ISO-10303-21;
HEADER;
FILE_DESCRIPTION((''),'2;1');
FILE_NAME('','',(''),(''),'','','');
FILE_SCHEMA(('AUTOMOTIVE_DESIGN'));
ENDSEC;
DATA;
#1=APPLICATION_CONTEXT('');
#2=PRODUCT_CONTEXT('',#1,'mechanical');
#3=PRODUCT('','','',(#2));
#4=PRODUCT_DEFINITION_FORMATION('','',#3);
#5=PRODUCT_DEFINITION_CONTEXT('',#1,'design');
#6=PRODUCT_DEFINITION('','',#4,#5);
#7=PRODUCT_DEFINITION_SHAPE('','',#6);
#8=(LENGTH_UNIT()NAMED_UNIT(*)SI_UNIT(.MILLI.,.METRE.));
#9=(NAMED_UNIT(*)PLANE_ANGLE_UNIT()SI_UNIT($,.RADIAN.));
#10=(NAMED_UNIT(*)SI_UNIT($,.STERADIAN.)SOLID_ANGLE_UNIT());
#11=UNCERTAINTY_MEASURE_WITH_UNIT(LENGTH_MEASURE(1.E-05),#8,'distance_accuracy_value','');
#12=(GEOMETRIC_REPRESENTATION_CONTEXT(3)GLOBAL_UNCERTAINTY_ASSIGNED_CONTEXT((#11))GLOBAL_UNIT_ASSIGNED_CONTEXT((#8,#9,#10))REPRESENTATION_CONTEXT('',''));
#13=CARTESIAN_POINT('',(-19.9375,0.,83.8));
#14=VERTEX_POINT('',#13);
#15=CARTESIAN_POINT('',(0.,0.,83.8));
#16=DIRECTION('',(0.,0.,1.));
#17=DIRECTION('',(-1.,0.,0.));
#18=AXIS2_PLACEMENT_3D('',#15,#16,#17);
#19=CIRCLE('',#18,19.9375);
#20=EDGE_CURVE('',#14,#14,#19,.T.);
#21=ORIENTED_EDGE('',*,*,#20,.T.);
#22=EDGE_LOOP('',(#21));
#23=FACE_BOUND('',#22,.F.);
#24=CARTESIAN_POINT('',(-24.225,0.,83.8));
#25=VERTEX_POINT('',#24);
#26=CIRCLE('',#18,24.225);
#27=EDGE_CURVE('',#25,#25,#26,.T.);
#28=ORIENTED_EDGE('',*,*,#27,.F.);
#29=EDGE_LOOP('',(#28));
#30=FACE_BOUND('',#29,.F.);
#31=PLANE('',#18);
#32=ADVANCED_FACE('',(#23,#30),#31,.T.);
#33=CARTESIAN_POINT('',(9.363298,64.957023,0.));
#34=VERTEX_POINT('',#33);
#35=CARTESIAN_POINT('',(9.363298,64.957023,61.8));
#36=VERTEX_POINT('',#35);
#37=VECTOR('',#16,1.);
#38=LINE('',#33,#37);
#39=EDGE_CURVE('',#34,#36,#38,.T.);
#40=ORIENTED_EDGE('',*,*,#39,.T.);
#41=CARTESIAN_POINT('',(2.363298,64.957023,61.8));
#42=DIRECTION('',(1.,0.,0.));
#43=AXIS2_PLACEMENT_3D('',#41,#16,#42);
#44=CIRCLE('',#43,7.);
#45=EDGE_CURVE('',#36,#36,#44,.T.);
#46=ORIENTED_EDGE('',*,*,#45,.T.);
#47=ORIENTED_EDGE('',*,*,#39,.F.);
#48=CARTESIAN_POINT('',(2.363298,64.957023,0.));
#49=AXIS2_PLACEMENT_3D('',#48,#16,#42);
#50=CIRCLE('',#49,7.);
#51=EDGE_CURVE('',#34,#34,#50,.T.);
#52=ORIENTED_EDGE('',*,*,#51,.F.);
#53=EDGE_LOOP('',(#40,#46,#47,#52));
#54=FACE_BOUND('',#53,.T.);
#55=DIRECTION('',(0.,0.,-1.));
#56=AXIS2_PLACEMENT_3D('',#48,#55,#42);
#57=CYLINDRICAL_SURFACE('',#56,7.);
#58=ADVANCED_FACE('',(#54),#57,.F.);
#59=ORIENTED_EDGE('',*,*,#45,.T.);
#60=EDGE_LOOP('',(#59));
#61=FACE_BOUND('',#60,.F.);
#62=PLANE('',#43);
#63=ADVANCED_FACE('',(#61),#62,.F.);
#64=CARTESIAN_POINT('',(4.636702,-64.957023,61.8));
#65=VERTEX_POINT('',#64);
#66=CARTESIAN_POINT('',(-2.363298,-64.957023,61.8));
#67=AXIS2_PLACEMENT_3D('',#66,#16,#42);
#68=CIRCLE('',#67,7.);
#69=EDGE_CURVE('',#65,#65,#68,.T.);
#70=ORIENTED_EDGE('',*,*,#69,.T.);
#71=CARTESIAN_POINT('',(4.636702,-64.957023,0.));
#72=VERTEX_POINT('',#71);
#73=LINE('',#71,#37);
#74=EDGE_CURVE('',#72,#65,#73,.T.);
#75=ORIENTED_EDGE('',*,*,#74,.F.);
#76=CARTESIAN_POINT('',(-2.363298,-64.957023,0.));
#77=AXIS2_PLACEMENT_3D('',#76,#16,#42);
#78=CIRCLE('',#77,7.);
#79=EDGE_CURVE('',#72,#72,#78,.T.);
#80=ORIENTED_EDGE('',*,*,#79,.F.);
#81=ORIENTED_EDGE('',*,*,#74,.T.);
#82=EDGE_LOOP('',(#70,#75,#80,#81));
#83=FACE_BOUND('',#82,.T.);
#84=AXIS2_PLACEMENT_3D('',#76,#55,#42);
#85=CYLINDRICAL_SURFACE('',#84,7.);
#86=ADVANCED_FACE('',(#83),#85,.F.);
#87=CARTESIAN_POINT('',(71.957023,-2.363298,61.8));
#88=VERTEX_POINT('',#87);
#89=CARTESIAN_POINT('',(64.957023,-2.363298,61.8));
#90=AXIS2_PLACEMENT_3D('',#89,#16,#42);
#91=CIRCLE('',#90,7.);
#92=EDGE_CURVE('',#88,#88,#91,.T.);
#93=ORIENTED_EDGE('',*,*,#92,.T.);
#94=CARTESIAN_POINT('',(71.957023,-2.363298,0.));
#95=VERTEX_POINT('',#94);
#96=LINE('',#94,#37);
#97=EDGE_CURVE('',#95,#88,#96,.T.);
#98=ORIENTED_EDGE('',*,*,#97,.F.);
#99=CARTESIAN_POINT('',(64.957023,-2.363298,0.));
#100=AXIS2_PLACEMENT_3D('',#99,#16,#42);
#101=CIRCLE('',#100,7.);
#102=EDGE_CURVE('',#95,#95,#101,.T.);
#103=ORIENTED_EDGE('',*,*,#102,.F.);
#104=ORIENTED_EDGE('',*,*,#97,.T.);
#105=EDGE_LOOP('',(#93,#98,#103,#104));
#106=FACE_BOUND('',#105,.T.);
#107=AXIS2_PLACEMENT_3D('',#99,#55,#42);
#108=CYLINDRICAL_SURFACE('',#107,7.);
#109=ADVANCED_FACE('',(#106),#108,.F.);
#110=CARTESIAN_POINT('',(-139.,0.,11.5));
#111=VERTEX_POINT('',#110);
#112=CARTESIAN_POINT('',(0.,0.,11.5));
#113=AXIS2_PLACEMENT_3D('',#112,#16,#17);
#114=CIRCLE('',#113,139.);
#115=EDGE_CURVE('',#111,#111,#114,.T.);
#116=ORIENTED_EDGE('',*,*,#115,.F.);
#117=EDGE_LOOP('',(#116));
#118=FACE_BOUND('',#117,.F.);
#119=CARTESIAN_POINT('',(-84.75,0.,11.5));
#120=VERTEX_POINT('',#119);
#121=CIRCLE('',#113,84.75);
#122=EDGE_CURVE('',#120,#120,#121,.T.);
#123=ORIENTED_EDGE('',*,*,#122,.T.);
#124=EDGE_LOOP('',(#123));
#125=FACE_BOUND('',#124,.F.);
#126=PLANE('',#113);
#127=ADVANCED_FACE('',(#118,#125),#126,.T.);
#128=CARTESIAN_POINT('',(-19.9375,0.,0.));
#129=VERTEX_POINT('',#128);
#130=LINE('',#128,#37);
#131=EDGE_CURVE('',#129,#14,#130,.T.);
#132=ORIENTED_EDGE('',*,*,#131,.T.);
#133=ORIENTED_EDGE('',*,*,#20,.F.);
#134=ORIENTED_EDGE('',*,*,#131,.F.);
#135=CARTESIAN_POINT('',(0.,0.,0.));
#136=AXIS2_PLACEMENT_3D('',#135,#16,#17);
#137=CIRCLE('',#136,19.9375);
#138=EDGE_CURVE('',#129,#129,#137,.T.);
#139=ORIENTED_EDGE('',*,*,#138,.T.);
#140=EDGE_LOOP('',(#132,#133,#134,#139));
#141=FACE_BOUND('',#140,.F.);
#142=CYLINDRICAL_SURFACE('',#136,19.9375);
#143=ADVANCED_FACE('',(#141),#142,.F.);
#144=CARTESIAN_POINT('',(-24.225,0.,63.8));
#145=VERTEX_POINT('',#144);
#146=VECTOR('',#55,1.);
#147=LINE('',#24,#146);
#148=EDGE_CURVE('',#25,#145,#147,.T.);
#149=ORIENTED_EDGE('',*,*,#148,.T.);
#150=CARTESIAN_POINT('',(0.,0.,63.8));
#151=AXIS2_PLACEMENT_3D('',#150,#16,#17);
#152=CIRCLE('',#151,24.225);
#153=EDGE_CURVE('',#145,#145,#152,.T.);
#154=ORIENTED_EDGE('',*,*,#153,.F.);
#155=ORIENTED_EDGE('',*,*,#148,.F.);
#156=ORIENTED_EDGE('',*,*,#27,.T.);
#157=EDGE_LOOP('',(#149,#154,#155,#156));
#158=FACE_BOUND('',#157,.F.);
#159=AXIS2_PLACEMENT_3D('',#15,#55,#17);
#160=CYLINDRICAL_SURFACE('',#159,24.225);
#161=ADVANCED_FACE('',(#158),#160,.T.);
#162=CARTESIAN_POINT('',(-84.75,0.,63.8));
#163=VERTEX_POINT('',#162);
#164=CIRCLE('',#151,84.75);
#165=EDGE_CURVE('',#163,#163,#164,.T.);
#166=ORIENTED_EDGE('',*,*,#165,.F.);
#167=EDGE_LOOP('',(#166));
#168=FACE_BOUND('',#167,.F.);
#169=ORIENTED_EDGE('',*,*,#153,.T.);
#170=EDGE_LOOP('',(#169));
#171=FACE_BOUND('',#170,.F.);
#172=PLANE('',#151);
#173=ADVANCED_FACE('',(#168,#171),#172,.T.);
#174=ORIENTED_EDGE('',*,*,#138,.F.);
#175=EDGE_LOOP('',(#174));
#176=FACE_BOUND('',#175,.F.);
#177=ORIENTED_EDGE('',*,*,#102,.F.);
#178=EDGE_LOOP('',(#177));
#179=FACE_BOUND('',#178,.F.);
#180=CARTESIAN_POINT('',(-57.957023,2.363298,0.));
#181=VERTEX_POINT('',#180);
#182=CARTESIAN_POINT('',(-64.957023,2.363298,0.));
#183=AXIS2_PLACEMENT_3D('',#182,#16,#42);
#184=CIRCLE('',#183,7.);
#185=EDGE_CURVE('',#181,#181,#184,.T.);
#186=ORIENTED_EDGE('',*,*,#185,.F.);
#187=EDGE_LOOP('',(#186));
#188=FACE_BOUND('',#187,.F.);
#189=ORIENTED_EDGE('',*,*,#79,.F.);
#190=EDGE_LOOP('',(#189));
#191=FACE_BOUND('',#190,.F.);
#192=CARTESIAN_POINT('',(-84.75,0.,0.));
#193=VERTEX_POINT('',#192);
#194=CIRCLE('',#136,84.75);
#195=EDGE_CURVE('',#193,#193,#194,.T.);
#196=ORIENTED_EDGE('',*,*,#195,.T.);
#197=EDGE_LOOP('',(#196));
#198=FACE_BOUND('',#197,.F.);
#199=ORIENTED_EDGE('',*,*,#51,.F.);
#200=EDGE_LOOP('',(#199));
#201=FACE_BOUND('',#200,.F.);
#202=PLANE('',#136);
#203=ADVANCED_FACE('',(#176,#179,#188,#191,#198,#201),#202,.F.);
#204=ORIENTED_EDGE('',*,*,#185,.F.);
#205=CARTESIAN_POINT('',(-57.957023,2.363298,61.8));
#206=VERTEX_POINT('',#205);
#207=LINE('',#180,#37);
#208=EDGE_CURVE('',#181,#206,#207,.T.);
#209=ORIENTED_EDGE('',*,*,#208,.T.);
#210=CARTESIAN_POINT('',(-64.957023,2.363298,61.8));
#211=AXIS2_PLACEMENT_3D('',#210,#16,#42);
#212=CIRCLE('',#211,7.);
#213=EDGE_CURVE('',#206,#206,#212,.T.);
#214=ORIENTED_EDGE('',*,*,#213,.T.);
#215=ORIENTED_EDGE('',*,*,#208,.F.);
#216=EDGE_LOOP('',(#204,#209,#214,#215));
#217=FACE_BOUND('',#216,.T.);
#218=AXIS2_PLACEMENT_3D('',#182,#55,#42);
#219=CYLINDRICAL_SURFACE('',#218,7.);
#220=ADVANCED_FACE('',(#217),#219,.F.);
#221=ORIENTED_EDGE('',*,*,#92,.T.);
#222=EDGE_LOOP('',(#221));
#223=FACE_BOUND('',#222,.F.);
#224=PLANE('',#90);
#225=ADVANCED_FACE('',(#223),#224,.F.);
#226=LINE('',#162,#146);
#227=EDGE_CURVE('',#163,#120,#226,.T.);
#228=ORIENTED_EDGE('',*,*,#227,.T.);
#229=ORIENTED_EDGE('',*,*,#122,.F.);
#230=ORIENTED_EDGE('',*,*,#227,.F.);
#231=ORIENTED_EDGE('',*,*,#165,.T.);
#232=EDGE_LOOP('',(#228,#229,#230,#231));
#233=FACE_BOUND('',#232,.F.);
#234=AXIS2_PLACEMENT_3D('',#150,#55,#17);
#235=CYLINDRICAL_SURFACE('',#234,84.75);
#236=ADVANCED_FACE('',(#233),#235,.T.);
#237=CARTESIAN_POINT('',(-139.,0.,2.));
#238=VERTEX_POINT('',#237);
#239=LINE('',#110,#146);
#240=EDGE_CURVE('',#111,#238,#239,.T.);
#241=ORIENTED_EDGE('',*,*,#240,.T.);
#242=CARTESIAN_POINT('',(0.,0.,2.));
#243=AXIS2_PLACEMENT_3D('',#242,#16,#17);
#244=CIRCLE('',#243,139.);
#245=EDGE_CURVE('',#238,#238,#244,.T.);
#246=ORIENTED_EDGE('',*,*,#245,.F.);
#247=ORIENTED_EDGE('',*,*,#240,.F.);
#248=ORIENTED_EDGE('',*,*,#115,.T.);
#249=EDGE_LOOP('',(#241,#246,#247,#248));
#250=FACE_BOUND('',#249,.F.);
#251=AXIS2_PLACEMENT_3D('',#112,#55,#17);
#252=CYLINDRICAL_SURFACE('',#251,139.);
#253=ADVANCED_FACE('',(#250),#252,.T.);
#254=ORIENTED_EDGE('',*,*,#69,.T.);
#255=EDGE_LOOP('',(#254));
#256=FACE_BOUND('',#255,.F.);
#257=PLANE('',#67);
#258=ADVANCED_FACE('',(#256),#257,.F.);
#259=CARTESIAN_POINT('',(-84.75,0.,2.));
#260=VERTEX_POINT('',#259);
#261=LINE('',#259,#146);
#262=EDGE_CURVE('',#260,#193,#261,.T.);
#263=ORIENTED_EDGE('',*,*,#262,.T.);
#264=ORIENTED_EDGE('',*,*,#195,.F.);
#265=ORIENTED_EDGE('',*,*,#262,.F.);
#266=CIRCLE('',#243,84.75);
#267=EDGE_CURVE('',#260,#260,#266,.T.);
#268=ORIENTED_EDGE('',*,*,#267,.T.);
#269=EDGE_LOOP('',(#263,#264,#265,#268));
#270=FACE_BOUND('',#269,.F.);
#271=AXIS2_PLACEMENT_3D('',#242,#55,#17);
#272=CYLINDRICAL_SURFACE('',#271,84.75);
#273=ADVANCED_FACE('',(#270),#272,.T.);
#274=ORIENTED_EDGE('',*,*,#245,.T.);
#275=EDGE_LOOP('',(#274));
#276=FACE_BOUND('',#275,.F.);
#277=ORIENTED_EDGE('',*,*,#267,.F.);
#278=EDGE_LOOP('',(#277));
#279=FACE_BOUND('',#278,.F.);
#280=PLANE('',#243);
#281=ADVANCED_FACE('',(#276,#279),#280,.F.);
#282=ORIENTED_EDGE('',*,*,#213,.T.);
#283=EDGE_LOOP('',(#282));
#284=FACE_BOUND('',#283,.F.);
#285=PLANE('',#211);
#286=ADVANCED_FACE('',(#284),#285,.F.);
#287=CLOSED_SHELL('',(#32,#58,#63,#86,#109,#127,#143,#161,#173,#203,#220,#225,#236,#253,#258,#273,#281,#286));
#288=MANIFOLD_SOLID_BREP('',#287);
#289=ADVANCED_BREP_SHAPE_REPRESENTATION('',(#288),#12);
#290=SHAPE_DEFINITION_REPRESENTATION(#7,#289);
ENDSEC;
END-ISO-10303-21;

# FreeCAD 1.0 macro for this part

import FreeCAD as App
import Part
import Sketcher
from FreeCAD import Vector
Q = App.Units.Quantity

doc = App.newDocument("Part")
body = doc.addObject("PartDesign::Body", "Body")

sketch1 = body.newObject("Sketcher::SketchObject", "Sketch")
sketch1.AttachmentSupport = (doc.getObject("XZ_Plane"), [""])
sketch1.MapMode = "FlatFace"
sketch1.addGeometry(Part.LineSegment(Vector(-84.8, 0, 0), Vector(-19.9, 0, 0)), False)
sketch1.addGeometry(Part.LineSegment(Vector(-19.9, 0, 0), Vector(-19.9, 83.8, 0)), False)
sketch1.addGeometry(Part.LineSegment(Vector(-19.9, 83.8, 0), Vector(-24.2, 83.8, 0)), False)
sketch1.addGeometry(Part.LineSegment(Vector(-24.2, 83.8, 0), Vector(-24.2, 63.8, 0)), False)
sketch1.addGeometry(Part.LineSegment(Vector(-24.2, 63.8, 0), Vector(-84.8, 63.8, 0)), False)
sketch1.addGeometry(Part.LineSegment(Vector(-84.8, 63.8, 0), Vector(-84.8, 11.5, 0)), False)
sketch1.addGeometry(Part.LineSegment(Vector(-84.8, 11.5, 0), Vector(-139, 11.5, 0)), False)
sketch1.addGeometry(Part.LineSegment(Vector(-139, 11.5, 0), Vector(-139, 2, 0)), False)
sketch1.addGeometry(Part.LineSegment(Vector(-139, 2, 0), Vector(-84.8, 2, 0)), False)
sketch1.addGeometry(Part.LineSegment(Vector(-84.8, 2, 0), Vector(-84.8, 0, 0)), False)
sketch1.addConstraint(Sketcher.Constraint("Coincident", 0, 2, 1, 1))
sketch1.addConstraint(Sketcher.Constraint("Coincident", 1, 2, 2, 1))
sketch1.addConstraint(Sketcher.Constraint("Coincident", 2, 2, 3, 1))
sketch1.addConstraint(Sketcher.Constraint("Coincident", 3, 2, 4, 1))
sketch1.addConstraint(Sketcher.Constraint("Coincident", 4, 2, 5, 1))
sketch1.addConstraint(Sketcher.Constraint("Coincident", 5, 2, 6, 1))
sketch1.addConstraint(Sketcher.Constraint("Coincident", 6, 2, 7, 1))
sketch1.addConstraint(Sketcher.Constraint("Coincident", 7, 2, 8, 1))
sketch1.addConstraint(Sketcher.Constraint("Coincident", 8, 2, 9, 1))
sketch1.addConstraint(Sketcher.Constraint("Coincident", 9, 2, 0, 1))
sketch1.addConstraint(Sketcher.Constraint("Horizontal", 0))
sketch1.addConstraint(Sketcher.Constraint("Vertical", 1))
sketch1.addConstraint(Sketcher.Constraint("Horizontal", 2))
sketch1.addConstraint(Sketcher.Constraint("Vertical", 3))
sketch1.addConstraint(Sketcher.Constraint("Horizontal", 4))
sketch1.addConstraint(Sketcher.Constraint("Vertical", 5))
sketch1.addConstraint(Sketcher.Constraint("Horizontal", 6))
sketch1.addConstraint(Sketcher.Constraint("Vertical", 7))
sketch1.addConstraint(Sketcher.Constraint("Horizontal", 8))
sketch1.addConstraint(Sketcher.Constraint("Vertical", 9))
sketch1.addConstraint(Sketcher.Constraint("PointOnObject", 0, 2, -1))
sketch1.addConstraint(Sketcher.Constraint("Vertical", 5, 2, 8, 2))
sketch1.addConstraint(Sketcher.Constraint("DistanceY", 3, 2, 3, 1, Q("20 mm")))
sketch1.addConstraint(Sketcher.Constraint("DistanceY", 9, 2, 9, 1, Q("2 mm")))
sketch1.addConstraint(Sketcher.Constraint("DistanceY", 1, 1, 1, 2, Q("83.8 mm")))
sketch1.addConstraint(Sketcher.Constraint("DistanceY", 5, 2, 5, 1, Q("52.3 mm")))
sketch1.addConstraint(Sketcher.Constraint("DistanceX", 6, 2, -1, 1, Q("139 mm")))
sketch1.addConstraint(Sketcher.Constraint("DistanceX", 6, 2, 6, 1, Q("54.25 mm")))
sketch1.addConstraint(Sketcher.Constraint("DistanceX", 4, 2, 4, 1, Q("60.525 mm")))
sketch1.addConstraint(Sketcher.Constraint("DistanceX", 0, 1, 0, 2, Q("64.8125 mm")))
revolution = body.newObject("PartDesign::Revolution", "Revolution")
revolution.Profile = sketch1
revolution.ReferenceAxis = (sketch1, ["V_Axis"])
revolution.Angle = 360

sketch2 = body.newObject("Sketcher::SketchObject", "Sketch001")
sketch2.AttachmentSupport = (doc.getObject("XY_Plane"), [""])
sketch2.MapMode = "FlatFace"
sketch2.addGeometry(Part.Circle(Vector(65, -2, 0), Vector(0, 0, 1), 7), False)
sketch2.addGeometry(Part.Circle(Vector(2, 65, 0), Vector(0, 0, 1), 7), False)
sketch2.addGeometry(Part.Circle(Vector(-65, 2, 0), Vector(0, 0, 1), 7), False)
sketch2.addGeometry(Part.Circle(Vector(-2, -65, 0), Vector(0, 0, 1), 7), False)
sketch2.addConstraint(Sketcher.Constraint("Equal", 0, 1))
sketch2.addConstraint(Sketcher.Constraint("Equal", 1, 2))
sketch2.addConstraint(Sketcher.Constraint("Equal", 2, 3))
sketch2.addConstraint(Sketcher.Constraint("Symmetric", 0, 3, 2, 3, -1, 1))
sketch2.addConstraint(Sketcher.Constraint("Symmetric", 1, 3, 3, 3, -1, 1))
sketch2.addConstraint(Sketcher.Constraint("Diameter", 0, Q("14 mm")))
sketch2.addConstraint(Sketcher.Constraint("DistanceY", 0, 3, 1, 3, Q("67.320321 mm")))
sketch2.addConstraint(Sketcher.Constraint("DistanceX", 2, 3, 1, 3, Q("67.320321 mm")))
sketch2.addConstraint(Sketcher.Constraint("DistanceX", -1, 1, 0, 3, Q("64.957023 mm")))
sketch2.addConstraint(Sketcher.Constraint("DistanceY", 0, 3, -1, 1, Q("2.363298 mm")))
pocket1 = body.newObject("PartDesign::Pocket", "Pocket")
pocket1.Profile = sketch2
pocket1.Length = 61.8
pocket1.Reversed = True

doc.recompute()
